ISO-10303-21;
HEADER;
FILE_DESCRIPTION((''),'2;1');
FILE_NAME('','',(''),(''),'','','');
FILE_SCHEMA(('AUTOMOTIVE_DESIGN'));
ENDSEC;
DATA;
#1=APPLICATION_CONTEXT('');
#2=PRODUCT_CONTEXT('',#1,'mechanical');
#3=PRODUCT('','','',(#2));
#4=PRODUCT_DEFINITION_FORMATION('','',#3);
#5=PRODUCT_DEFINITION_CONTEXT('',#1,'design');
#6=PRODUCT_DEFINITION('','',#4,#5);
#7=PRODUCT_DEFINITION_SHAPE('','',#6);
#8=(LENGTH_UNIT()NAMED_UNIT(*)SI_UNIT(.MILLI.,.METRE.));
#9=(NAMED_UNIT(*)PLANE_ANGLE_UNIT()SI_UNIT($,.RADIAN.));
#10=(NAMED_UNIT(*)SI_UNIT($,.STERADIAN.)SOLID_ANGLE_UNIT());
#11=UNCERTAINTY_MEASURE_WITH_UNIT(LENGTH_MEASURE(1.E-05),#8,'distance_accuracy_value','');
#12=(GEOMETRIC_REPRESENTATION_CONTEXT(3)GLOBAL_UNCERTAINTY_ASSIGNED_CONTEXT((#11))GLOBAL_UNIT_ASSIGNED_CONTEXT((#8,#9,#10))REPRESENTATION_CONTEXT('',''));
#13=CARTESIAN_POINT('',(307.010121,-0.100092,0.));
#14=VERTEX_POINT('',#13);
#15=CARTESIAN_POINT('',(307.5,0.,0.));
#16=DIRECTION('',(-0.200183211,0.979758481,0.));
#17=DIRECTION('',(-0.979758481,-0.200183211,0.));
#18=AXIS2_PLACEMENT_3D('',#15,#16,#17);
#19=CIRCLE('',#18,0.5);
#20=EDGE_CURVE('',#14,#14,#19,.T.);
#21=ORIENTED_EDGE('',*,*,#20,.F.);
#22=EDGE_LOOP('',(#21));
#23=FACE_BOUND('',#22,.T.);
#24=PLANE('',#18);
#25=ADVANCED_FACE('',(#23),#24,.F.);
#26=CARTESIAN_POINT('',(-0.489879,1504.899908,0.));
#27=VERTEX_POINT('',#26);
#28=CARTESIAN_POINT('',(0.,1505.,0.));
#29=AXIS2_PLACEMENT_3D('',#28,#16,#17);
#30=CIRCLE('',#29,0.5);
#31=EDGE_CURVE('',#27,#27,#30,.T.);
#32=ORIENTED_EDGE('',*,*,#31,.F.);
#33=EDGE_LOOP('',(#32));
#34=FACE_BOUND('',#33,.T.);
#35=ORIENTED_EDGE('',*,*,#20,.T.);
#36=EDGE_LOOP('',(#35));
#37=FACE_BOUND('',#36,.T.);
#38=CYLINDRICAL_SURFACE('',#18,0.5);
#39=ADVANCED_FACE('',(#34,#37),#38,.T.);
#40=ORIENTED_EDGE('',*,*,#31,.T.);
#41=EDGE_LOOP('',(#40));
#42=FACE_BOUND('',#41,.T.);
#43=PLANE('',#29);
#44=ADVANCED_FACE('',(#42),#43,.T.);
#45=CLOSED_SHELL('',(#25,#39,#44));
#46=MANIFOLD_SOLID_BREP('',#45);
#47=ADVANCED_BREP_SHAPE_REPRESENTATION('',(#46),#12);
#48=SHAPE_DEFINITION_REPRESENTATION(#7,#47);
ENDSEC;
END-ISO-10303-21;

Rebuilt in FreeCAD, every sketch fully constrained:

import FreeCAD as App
import Part
import Sketcher
Q = App.Units.Quantity

doc = App.newDocument("Part")
params = doc.addObject("Spreadsheet::Sheet", "Params")
for row, (alias, value) in enumerate([
    ("sketch1_diameter", "1 mm"),
], start=1):
    params.set(f"A{row}", alias)
    params.set(f"B{row}", "=" + value)
    params.setAlias(f"B{row}", alias)

body = doc.addObject("PartDesign::Body", "Body")

sketch1 = body.newObject("Sketcher::SketchObject", "Sketch")
sketch1.Placement = App.Placement(App.Vector(307.5, 0, 0), App.Rotation(App.Vector(0.979758481, 0.200183211, 0), App.Vector(0, 0, -0.999999999), App.Vector(-0.200183211, 0.979758481, 0), "ZXY"))
sketch1.addGeometry(Part.Circle(App.Vector(0, 0, 0), App.Vector(0, 0, 1), 0.5), False)
sketch1.addConstraint([
    Sketcher.Constraint("Coincident", 0, 3, -1, 1),
    Sketcher.Constraint("Diameter", 0, Q("1 mm")),
])
sketch1.setExpression("Constraints[1]", "Params.sketch1_diameter")

sketch2 = body.newObject("Sketcher::SketchObject", "Sketch001")
sketch2.Placement = App.Placement(App.Vector(295.177455, 60.310344, 0), App.Rotation(App.Vector(-0.200183211, 0.979758481, 0), App.Vector(0, 0, 0.999999999), App.Vector(0.979758481, 0.200183211, 0), "ZXY"))
sketch2.addGeometry(Part.LineSegment(App.Vector(-62, 0, 0), App.Vector(1475, 0, 0)), False)
sketch2.addConstraint([
    Sketcher.Constraint("Horizontal", 0),
    Sketcher.Constraint("PointOnObject", 0, 1, -1),
    Sketcher.Constraint("DistanceX", 0, 1, 0, 2, Q("1536.092851 mm")),
    Sketcher.Constraint("DistanceX", 0, 1, -1, 1, Q("61.556337 mm")),
])
doc.recompute()

additivepipe = body.newObject("PartDesign::AdditivePipe", "AdditivePipe")
additivepipe.Profile = sketch1
additivepipe.Spine = (sketch2, ["Edge1"])

doc.recompute()
